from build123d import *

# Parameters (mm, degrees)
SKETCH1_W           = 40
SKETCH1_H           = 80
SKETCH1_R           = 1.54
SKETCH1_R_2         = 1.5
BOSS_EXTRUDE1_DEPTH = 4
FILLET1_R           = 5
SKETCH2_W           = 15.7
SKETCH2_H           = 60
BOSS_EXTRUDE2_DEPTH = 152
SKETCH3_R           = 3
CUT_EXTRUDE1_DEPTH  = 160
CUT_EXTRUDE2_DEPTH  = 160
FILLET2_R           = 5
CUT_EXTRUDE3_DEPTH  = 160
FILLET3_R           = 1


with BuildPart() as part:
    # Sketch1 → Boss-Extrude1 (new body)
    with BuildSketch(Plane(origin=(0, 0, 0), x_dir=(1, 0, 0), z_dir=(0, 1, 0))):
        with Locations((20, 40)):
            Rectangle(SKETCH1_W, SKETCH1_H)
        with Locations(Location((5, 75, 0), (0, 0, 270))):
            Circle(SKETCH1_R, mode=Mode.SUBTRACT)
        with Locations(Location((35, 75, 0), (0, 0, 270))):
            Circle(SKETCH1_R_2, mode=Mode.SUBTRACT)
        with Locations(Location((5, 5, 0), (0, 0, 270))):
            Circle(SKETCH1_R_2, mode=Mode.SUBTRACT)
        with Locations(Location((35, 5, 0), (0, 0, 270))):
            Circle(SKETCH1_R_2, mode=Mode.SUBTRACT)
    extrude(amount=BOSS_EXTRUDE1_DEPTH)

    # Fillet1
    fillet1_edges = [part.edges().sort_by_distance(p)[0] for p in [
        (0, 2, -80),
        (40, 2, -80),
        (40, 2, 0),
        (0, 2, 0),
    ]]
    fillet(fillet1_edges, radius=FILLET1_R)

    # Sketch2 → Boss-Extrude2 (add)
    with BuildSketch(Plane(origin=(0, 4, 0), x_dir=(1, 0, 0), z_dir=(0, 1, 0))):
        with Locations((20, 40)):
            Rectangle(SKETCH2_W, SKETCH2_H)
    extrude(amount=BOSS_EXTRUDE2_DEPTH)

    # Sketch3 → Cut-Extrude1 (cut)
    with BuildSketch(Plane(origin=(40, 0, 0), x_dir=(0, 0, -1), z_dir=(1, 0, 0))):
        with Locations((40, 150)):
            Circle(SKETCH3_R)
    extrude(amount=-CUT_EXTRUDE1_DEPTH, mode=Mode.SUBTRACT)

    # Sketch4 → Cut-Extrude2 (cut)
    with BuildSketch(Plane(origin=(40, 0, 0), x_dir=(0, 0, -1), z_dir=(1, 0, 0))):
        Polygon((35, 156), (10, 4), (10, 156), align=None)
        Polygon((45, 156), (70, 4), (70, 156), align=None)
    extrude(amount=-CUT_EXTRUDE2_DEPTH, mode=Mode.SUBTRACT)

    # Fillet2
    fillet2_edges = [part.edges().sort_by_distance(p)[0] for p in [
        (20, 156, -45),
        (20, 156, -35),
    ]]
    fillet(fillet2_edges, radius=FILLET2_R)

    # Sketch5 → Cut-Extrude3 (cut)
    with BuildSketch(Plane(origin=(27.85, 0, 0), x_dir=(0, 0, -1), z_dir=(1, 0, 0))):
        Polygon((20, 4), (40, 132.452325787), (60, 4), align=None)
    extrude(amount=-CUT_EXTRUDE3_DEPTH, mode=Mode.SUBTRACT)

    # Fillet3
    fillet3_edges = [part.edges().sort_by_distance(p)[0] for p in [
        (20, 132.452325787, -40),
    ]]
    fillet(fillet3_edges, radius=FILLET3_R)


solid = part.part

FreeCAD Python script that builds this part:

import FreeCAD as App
import Part
import Sketcher

V = App.Vector
Q = App.Units.Quantity


def edges_at(feature, points):
    """Names of the edges that pass closest to the given points."""
    edges = feature.Shape.Edges
    near = lambda p: min(range(len(edges)), key=lambda i: edges[i].distToShape(Part.Vertex(*p))[0])
    return sorted({f"Edge{near(p) + 1}" for p in points})


def add_polygon(sketch, points):
    """Adds a closed chain of lines whose ends are joined by coincident constraints."""
    first, n = sketch.GeometryCount, len(points)
    for a, b in zip(points, points[1:] + points[:1]):
        sketch.addGeometry(Part.LineSegment(App.Vector(*a, 0), App.Vector(*b, 0)), False)
    for i in range(n):
        sketch.addConstraint(Sketcher.Constraint("Coincident", first + i, 2, first + (i + 1) % n, 1))

doc = App.newDocument("Part")
body = doc.addObject("PartDesign::Body", "Body")

# Sketch on XZ plane
sketch1 = doc.addObject("Sketcher::SketchObject", "Sketch")
body.addObject(sketch1)
sketch1.AttachmentSupport = (doc.XZ_Plane, [""])
sketch1.MapMode = "FlatFace"
add_polygon(sketch1, [(0, -80), (0, 0), (40, 0), (40, -80)])  # lines 0-3
sketch1.addGeometry(Part.Circle(V(5, -5, 0), V(0, 0, 1), 1.5), False)  # 4
sketch1.addGeometry(Part.Circle(V(35, -5, 0), V(0, 0, 1), 1.5), False)  # 5
sketch1.addGeometry(Part.Circle(V(5, -75, 0), V(0, 0, 1), 1.5), False)  # 6
sketch1.addGeometry(Part.Circle(V(35, -75, 0), V(0, 0, 1), 1.5), False)  # 7
sketch1.addConstraint([
    Sketcher.Constraint("Vertical", 0),
    Sketcher.Constraint("Horizontal", 1),
    Sketcher.Constraint("Vertical", 2),
    Sketcher.Constraint("Horizontal", 3),
    Sketcher.Constraint("Coincident", 0, 2, -1, 1),
    Sketcher.Constraint("Equal", 4, 5),
    Sketcher.Constraint("Equal", 5, 7),
    Sketcher.Constraint("Horizontal", 4, 3, 5, 3),
    Sketcher.Constraint("Horizontal", 6, 3, 7, 3),
    Sketcher.Constraint("Vertical", 4, 3, 6, 3),
    Sketcher.Constraint("Vertical", 5, 3, 7, 3),
    Sketcher.Constraint("Diameter", 4, Q("3 mm")),
    Sketcher.Constraint("Diameter", 6, Q("3.08 mm")),
    Sketcher.Constraint("DistanceX", 1, 1, 1, 2, Q("40 mm")),
    Sketcher.Constraint("DistanceY", 0, 1, 0, 2, Q("80 mm")),
    Sketcher.Constraint("DistanceX", -1, 1, 4, 3, Q("5 mm")),
    Sketcher.Constraint("DistanceY", 4, 3, -1, 1, Q("5 mm")),
    Sketcher.Constraint("DistanceX", -1, 1, 5, 3, Q("35 mm")),
    Sketcher.Constraint("DistanceY", 6, 3, -1, 1, Q("75 mm")),
])
pad1 = doc.addObject("PartDesign::Pad", "Pad")
body.addObject(pad1)
pad1.Profile = sketch1
pad1.Length = 4
pad1.Reversed = True
doc.recompute()

fillet = doc.addObject("PartDesign::Fillet", "Fillet")
body.addObject(fillet)
fillet.Base = (pad1, edges_at(pad1, [
    (0, 2, -80),
    (40, 2, -80),
    (40, 2, 0),
    (0, 2, 0),
]))
fillet.Radius = 5

# Sketch on XZ plane
sketch2 = doc.addObject("Sketcher::SketchObject", "Sketch001")
body.addObject(sketch2)
sketch2.AttachmentSupport = (doc.XZ_Plane, [""])
sketch2.MapMode = "FlatFace"
sketch2.AttachmentOffset = App.Placement(V(0, 0, -4), App.Rotation())
add_polygon(sketch2, [(12, -70), (12, -10), (28, -10), (28, -70)])  # lines 0-3
sketch2.addConstraint([
    Sketcher.Constraint("Vertical", 0),
    Sketcher.Constraint("Horizontal", 1),
    Sketcher.Constraint("Vertical", 2),
    Sketcher.Constraint("Horizontal", 3),
    Sketcher.Constraint("DistanceY", 0, 1, 0, 2, Q("60 mm")),
    Sketcher.Constraint("DistanceX", 1, 1, 1, 2, Q("15.7 mm")),
    Sketcher.Constraint("DistanceY", 0, 2, -1, 1, Q("10 mm")),
    Sketcher.Constraint("DistanceX", -1, 1, 0, 2, Q("12.15 mm")),
])
pad2 = doc.addObject("PartDesign::Pad", "Pad001")
body.addObject(pad2)
pad2.Profile = sketch2
pad2.Length = 152
pad2.Reversed = True

# Sketch on YZ plane
sketch3 = doc.addObject("Sketcher::SketchObject", "Sketch002")
body.addObject(sketch3)
sketch3.AttachmentSupport = (doc.YZ_Plane, [""])
sketch3.MapMode = "FlatFace"
sketch3.AttachmentOffset = App.Placement(V(0, 0, 40), App.Rotation())
sketch3.addGeometry(Part.Circle(V(150, -40, 0), V(0, 0, 1), 3), False)
sketch3.addConstraint([
    Sketcher.Constraint("Diameter", 0, Q("6 mm")),
    Sketcher.Constraint("DistanceX", -1, 1, 0, 3, Q("150 mm")),
    Sketcher.Constraint("DistanceY", 0, 3, -1, 1, Q("40 mm")),
])
pocket1 = doc.addObject("PartDesign::Pocket", "Pocket")
body.addObject(pocket1)
pocket1.Profile = sketch3
pocket1.Length = 160

# Sketch on YZ plane
sketch4 = doc.addObject("Sketcher::SketchObject", "Sketch003")
body.addObject(sketch4)
sketch4.AttachmentSupport = (doc.YZ_Plane, [""])
sketch4.MapMode = "FlatFace"
sketch4.AttachmentOffset = App.Placement(V(0, 0, 40), App.Rotation())
add_polygon(sketch4, [(4, -10), (156, -35), (156, -10)])  # lines 0-2
add_polygon(sketch4, [(156, -45), (4, -70), (156, -70)])  # lines 3-5
sketch4.addConstraint([
    Sketcher.Constraint("Vertical", 1),
    Sketcher.Constraint("Horizontal", 2),
    Sketcher.Constraint("Horizontal", 4),
    Sketcher.Constraint("Vertical", 5),
    Sketcher.Constraint("Vertical", 2, 2, 3, 2),
    Sketcher.Constraint("Vertical", 1, 2, 4, 2),
    Sketcher.Constraint("Equal", 1, 5),
    Sketcher.Constraint("DistanceX", 2, 2, 2, 1, Q("152 mm")),
    Sketcher.Constraint("DistanceY", 1, 1, 1, 2, Q("25 mm")),
    Sketcher.Constraint("DistanceX", -1, 1, 0, 2, Q("156 mm")),
    Sketcher.Constraint("DistanceY", 0, 2, -1, 1, Q("35 mm")),
    Sketcher.Constraint("DistanceY", 3, 2, -1, 1, Q("70 mm")),
])
pocket2 = doc.addObject("PartDesign::Pocket", "Pocket001")
body.addObject(pocket2)
pocket2.Profile = sketch4
pocket2.Length = 160
doc.recompute()

fillet2 = doc.addObject("PartDesign::Fillet", "Fillet001")
body.addObject(fillet2)
fillet2.Base = (pocket2, edges_at(pocket2, [(20, 156, -45), (20, 156, -35)]))
fillet2.Radius = 5

# Sketch on YZ plane
sketch5 = doc.addObject("Sketcher::SketchObject", "Sketch004")
body.addObject(sketch5)
sketch5.AttachmentSupport = (doc.YZ_Plane, [""])
sketch5.MapMode = "FlatFace"
sketch5.AttachmentOffset = App.Placement(V(0, 0, 27.85), App.Rotation())
add_polygon(sketch5, [(132, -40), (4, -20), (4, -60)])  # lines 0-2
sketch5.addConstraint([
    Sketcher.Constraint("Vertical", 1),
    Sketcher.Constraint("Equal", 0, 2),
    Sketcher.Constraint("DistanceY", 1, 2, 1, 1, Q("40 mm")),
    Sketcher.Constraint("Distance", 0, Q("130 mm")),
    Sketcher.Constraint("DistanceX", -1, 1, 0, 2, Q("4 mm")),
    Sketcher.Constraint("DistanceY", 0, 2, -1, 1, Q("20 mm")),
])
pocket3 = doc.addObject("PartDesign::Pocket", "Pocket002")
body.addObject(pocket3)
pocket3.Profile = sketch5
pocket3.Length = 160
doc.recompute()

fillet3 = doc.addObject("PartDesign::Fillet", "Fillet002")
body.addObject(fillet3)
fillet3.Base = (pocket3, edges_at(pocket3, [(20, 132.452, -40)]))
fillet3.Radius = 1

doc.recompute()
